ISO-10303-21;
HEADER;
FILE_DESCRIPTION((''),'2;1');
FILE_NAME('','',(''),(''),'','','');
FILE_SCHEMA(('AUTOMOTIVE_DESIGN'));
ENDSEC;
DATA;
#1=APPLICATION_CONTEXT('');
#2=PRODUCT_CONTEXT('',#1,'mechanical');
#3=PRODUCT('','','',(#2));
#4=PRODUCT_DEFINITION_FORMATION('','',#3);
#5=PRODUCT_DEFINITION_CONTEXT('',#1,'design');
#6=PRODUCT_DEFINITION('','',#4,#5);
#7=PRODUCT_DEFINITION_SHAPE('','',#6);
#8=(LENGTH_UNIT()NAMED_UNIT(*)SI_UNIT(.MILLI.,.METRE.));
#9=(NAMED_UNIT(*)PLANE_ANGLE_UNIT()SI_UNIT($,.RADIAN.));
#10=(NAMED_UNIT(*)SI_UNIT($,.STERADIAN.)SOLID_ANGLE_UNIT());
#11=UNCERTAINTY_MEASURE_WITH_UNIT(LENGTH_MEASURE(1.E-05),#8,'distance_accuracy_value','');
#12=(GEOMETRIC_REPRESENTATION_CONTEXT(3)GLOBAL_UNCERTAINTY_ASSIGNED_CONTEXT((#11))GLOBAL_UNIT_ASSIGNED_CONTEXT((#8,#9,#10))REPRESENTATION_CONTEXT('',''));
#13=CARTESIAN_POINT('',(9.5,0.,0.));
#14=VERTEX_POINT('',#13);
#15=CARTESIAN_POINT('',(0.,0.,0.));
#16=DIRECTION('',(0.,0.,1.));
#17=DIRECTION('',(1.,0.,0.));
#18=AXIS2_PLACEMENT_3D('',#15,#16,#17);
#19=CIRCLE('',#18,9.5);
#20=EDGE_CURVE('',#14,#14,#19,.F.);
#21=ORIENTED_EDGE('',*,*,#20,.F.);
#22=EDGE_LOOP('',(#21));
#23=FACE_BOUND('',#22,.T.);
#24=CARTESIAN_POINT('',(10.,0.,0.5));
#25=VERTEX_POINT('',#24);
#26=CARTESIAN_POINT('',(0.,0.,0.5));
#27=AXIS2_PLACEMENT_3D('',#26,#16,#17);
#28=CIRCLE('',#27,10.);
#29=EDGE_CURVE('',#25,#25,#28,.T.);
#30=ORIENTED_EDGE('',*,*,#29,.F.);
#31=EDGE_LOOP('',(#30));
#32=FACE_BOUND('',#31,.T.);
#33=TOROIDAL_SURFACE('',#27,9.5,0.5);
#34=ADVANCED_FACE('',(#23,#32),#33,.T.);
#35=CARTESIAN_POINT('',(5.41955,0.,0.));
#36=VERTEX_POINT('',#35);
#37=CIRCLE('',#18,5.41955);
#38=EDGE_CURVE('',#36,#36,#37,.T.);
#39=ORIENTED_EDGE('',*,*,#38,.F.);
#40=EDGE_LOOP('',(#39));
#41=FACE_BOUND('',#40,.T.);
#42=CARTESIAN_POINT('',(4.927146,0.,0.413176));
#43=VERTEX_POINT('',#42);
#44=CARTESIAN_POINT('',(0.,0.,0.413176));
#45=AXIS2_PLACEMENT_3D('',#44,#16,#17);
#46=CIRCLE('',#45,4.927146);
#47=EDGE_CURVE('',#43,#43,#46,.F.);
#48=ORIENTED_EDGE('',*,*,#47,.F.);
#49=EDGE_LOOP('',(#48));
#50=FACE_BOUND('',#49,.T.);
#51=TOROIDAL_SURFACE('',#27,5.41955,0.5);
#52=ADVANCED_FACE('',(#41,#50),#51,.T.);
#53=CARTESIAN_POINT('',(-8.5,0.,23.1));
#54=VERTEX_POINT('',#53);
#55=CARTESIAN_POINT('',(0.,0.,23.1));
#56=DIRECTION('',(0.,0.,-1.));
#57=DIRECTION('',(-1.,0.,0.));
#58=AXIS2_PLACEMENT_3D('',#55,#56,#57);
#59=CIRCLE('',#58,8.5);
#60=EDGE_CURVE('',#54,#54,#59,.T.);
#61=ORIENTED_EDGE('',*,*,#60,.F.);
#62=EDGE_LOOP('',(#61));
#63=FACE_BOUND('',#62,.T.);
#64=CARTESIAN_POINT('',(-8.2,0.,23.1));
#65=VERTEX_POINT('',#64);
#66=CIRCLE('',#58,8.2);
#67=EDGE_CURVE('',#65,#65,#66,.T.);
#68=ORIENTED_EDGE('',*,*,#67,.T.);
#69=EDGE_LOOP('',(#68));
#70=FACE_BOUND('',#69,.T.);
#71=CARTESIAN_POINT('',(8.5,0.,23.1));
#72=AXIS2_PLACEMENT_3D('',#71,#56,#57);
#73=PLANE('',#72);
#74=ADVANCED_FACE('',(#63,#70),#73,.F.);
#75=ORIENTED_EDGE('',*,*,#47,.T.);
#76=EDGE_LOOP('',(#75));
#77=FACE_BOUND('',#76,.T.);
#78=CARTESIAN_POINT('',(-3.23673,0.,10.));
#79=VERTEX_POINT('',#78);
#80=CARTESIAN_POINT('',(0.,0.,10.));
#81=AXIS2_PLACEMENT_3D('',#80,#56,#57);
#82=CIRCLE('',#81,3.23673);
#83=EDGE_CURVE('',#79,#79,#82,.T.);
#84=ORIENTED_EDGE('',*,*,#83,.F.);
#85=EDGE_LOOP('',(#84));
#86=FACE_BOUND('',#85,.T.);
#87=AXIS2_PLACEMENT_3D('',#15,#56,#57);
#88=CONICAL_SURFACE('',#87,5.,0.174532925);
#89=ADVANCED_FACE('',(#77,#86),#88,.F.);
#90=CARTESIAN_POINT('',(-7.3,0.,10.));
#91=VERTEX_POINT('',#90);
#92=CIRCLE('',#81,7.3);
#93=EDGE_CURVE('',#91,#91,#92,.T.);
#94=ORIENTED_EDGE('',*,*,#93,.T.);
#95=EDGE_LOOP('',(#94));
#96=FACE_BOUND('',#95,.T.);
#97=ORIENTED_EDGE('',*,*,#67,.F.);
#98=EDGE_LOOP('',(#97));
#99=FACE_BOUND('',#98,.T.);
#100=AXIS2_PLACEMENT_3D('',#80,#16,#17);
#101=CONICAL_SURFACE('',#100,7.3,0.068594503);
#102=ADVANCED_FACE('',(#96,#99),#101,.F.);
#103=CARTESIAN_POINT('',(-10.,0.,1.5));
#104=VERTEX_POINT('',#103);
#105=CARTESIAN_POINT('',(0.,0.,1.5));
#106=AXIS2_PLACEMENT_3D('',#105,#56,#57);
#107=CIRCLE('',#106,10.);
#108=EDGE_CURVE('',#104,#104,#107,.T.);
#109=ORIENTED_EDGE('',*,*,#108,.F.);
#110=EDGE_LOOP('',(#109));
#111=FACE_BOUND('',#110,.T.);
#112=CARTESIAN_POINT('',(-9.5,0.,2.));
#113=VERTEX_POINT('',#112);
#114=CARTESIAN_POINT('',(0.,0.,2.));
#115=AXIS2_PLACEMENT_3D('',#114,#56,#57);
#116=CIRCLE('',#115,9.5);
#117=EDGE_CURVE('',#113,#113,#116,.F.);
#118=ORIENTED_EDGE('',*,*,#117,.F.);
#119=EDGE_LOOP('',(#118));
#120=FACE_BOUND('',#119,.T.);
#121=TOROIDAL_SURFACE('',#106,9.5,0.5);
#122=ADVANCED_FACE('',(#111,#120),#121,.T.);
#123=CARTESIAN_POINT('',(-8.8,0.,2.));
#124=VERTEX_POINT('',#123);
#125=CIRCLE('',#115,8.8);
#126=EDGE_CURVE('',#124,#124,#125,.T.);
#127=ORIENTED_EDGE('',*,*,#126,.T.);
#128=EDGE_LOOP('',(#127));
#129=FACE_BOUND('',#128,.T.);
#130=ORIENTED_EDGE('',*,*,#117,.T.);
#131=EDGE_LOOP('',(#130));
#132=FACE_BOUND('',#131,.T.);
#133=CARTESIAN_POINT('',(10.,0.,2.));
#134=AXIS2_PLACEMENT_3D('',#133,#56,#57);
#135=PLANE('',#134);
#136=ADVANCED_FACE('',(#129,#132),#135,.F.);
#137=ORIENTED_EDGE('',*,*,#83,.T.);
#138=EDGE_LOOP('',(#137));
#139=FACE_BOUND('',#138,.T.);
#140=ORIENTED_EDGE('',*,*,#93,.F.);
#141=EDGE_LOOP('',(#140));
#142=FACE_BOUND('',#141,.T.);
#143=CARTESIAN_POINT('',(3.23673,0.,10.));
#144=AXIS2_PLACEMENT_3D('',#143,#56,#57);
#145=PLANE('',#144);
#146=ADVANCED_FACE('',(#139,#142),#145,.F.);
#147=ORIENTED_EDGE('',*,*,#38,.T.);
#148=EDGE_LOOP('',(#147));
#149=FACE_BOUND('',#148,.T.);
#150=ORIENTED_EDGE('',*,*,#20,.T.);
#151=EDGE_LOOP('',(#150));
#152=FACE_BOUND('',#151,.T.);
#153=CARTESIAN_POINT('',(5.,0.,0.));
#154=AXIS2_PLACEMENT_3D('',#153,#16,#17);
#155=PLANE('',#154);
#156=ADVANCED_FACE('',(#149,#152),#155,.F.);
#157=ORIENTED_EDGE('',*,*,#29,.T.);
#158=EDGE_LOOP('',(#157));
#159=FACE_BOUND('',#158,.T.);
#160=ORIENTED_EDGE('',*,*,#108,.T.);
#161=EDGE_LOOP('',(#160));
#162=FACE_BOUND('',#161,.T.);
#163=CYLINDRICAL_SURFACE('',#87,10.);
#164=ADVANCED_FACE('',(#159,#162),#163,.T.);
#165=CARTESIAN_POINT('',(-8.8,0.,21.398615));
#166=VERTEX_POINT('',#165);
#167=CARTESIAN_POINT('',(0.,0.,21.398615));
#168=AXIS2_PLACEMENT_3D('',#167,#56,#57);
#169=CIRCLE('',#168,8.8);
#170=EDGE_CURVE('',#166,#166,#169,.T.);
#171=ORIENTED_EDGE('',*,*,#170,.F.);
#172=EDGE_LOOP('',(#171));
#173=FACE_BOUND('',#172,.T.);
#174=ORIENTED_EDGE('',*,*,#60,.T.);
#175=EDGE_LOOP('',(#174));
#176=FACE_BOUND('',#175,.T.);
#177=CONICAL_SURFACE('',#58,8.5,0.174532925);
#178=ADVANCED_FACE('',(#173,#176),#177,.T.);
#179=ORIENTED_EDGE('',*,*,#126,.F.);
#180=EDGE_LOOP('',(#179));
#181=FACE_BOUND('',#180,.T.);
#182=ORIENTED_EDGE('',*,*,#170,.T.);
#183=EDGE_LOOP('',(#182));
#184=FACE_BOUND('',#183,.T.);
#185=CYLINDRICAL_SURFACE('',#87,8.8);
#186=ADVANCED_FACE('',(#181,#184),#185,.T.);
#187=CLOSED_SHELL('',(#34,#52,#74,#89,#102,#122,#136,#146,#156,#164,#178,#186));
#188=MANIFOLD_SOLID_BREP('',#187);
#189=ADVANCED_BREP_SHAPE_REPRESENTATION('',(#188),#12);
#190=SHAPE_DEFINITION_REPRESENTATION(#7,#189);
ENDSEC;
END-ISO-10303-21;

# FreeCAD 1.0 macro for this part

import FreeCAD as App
import Part
import Sketcher

V = App.Vector
Q = App.Units.Quantity


def edges_at(feature, points):
    """Names of the edges that pass closest to the given points."""
    edges = feature.Shape.Edges
    near = lambda p: min(range(len(edges)), key=lambda i: edges[i].distToShape(Part.Vertex(*p))[0])
    return sorted({f"Edge{near(p) + 1}" for p in points})

doc = App.newDocument("Part")
params = doc.addObject("Spreadsheet::Sheet", "Params")
for row, (alias, value) in enumerate([
    ("sketch1_width", "5 mm"),
    ("sketch1_height", "2 mm"),
    ("sketch1_width2", "0.3 mm"),
    ("sketch1_width3", "1.2 mm"),
    ("revolution_angle", "360 deg"),
    ("fillet_radius", "0.5 mm"),
], start=1):
    params.set(f"A{row}", alias)
    params.set(f"B{row}", "=" + value)
    params.setAlias(f"B{row}", alias)

body = doc.addObject("PartDesign::Body", "Body")

sketch1 = doc.addObject("Sketcher::SketchObject", "Sketch")
body.addObject(sketch1)
sketch1.AttachmentSupport = (doc.XZ_Plane, [""])
sketch1.MapMode = "FlatFace"
sketch1.addGeometry([
    Part.LineSegment(V(10, 0, 0), V(5, 0, 0)),
    Part.LineSegment(V(5, 0, 0), V(3.24, 10, 0)),
    Part.LineSegment(V(3.24, 10, 0), V(7.3, 10, 0)),
    Part.LineSegment(V(7.3, 10, 0), V(8.2, 23.1, 0)),
    Part.LineSegment(V(8.2, 23.1, 0), V(8.5, 23.1, 0)),
    Part.LineSegment(V(8.5, 23.1, 0), V(8.8, 21.4, 0)),
    Part.LineSegment(V(8.8, 21.4, 0), V(8.8, 2, 0)),
    Part.LineSegment(V(8.8, 2, 0), V(10, 2, 0)),
    Part.LineSegment(V(10, 2, 0), V(10, 0, 0)),
], False)
sketch1.addConstraint([
    Sketcher.Constraint("Coincident", 0, 2, 1, 1),
    Sketcher.Constraint("Coincident", 1, 2, 2, 1),
    Sketcher.Constraint("Coincident", 2, 2, 3, 1),
    Sketcher.Constraint("Coincident", 3, 2, 4, 1),
    Sketcher.Constraint("Coincident", 4, 2, 5, 1),
    Sketcher.Constraint("Coincident", 5, 2, 6, 1),
    Sketcher.Constraint("Coincident", 6, 2, 7, 1),
    Sketcher.Constraint("Coincident", 7, 2, 8, 1),
    Sketcher.Constraint("Coincident", 8, 2, 0, 1),
    Sketcher.Constraint("Horizontal", 0),
    Sketcher.Constraint("Horizontal", 2),
    Sketcher.Constraint("Horizontal", 4),
    Sketcher.Constraint("Vertical", 6),
    Sketcher.Constraint("Horizontal", 7),
    Sketcher.Constraint("Vertical", 8),
    Sketcher.Constraint("PointOnObject", 0, 2, -1),
    Sketcher.Constraint("Parallel", 1, 5),
    Sketcher.Constraint("DistanceX", 0, 2, 0, 1, Q("5 mm")),
    Sketcher.Constraint("DistanceY", 8, 2, 8, 1, Q("2 mm")),
    Sketcher.Constraint("Angle", 1, Q("100 deg")),
    Sketcher.Constraint("DistanceX", 4, 1, 4, 2, Q("0.3 mm")),
    Sketcher.Constraint("DistanceX", 7, 1, 7, 2, Q("1.2 mm")),
    Sketcher.Constraint("DistanceX", -1, 1, 0, 2, Q("5 mm")),
    Sketcher.Constraint("DistanceY", -1, 1, 1, 2, Q("10 mm")),
    Sketcher.Constraint("DistanceX", -1, 1, 2, 2, Q("7.3 mm")),
    Sketcher.Constraint("DistanceX", -1, 1, 3, 2, Q("8.2 mm")),
    Sketcher.Constraint("DistanceY", -1, 1, 3, 2, Q("23.1 mm")),
])
sketch1.setExpression("Constraints[17]", "Params.sketch1_width")
sketch1.setExpression("Constraints[18]", "Params.sketch1_height")
sketch1.setExpression("Constraints[20]", "Params.sketch1_width2")
sketch1.setExpression("Constraints[21]", "Params.sketch1_width3")
revolution = doc.addObject("PartDesign::Revolution", "Revolution")
body.addObject(revolution)
revolution.Profile = sketch1
revolution.ReferenceAxis = (sketch1, ["V_Axis"])
revolution.setExpression("Angle", "Params.revolution_angle")
doc.recompute()

fillet = doc.addObject("PartDesign::Fillet", "Fillet")
body.addObject(fillet)
fillet.Base = (revolution, edges_at(revolution, [(10, 0, 2), (10, 0, 0), (5, 0, 0)]))
fillet.setExpression("Radius", "Params.fillet_radius")

doc.recompute()
